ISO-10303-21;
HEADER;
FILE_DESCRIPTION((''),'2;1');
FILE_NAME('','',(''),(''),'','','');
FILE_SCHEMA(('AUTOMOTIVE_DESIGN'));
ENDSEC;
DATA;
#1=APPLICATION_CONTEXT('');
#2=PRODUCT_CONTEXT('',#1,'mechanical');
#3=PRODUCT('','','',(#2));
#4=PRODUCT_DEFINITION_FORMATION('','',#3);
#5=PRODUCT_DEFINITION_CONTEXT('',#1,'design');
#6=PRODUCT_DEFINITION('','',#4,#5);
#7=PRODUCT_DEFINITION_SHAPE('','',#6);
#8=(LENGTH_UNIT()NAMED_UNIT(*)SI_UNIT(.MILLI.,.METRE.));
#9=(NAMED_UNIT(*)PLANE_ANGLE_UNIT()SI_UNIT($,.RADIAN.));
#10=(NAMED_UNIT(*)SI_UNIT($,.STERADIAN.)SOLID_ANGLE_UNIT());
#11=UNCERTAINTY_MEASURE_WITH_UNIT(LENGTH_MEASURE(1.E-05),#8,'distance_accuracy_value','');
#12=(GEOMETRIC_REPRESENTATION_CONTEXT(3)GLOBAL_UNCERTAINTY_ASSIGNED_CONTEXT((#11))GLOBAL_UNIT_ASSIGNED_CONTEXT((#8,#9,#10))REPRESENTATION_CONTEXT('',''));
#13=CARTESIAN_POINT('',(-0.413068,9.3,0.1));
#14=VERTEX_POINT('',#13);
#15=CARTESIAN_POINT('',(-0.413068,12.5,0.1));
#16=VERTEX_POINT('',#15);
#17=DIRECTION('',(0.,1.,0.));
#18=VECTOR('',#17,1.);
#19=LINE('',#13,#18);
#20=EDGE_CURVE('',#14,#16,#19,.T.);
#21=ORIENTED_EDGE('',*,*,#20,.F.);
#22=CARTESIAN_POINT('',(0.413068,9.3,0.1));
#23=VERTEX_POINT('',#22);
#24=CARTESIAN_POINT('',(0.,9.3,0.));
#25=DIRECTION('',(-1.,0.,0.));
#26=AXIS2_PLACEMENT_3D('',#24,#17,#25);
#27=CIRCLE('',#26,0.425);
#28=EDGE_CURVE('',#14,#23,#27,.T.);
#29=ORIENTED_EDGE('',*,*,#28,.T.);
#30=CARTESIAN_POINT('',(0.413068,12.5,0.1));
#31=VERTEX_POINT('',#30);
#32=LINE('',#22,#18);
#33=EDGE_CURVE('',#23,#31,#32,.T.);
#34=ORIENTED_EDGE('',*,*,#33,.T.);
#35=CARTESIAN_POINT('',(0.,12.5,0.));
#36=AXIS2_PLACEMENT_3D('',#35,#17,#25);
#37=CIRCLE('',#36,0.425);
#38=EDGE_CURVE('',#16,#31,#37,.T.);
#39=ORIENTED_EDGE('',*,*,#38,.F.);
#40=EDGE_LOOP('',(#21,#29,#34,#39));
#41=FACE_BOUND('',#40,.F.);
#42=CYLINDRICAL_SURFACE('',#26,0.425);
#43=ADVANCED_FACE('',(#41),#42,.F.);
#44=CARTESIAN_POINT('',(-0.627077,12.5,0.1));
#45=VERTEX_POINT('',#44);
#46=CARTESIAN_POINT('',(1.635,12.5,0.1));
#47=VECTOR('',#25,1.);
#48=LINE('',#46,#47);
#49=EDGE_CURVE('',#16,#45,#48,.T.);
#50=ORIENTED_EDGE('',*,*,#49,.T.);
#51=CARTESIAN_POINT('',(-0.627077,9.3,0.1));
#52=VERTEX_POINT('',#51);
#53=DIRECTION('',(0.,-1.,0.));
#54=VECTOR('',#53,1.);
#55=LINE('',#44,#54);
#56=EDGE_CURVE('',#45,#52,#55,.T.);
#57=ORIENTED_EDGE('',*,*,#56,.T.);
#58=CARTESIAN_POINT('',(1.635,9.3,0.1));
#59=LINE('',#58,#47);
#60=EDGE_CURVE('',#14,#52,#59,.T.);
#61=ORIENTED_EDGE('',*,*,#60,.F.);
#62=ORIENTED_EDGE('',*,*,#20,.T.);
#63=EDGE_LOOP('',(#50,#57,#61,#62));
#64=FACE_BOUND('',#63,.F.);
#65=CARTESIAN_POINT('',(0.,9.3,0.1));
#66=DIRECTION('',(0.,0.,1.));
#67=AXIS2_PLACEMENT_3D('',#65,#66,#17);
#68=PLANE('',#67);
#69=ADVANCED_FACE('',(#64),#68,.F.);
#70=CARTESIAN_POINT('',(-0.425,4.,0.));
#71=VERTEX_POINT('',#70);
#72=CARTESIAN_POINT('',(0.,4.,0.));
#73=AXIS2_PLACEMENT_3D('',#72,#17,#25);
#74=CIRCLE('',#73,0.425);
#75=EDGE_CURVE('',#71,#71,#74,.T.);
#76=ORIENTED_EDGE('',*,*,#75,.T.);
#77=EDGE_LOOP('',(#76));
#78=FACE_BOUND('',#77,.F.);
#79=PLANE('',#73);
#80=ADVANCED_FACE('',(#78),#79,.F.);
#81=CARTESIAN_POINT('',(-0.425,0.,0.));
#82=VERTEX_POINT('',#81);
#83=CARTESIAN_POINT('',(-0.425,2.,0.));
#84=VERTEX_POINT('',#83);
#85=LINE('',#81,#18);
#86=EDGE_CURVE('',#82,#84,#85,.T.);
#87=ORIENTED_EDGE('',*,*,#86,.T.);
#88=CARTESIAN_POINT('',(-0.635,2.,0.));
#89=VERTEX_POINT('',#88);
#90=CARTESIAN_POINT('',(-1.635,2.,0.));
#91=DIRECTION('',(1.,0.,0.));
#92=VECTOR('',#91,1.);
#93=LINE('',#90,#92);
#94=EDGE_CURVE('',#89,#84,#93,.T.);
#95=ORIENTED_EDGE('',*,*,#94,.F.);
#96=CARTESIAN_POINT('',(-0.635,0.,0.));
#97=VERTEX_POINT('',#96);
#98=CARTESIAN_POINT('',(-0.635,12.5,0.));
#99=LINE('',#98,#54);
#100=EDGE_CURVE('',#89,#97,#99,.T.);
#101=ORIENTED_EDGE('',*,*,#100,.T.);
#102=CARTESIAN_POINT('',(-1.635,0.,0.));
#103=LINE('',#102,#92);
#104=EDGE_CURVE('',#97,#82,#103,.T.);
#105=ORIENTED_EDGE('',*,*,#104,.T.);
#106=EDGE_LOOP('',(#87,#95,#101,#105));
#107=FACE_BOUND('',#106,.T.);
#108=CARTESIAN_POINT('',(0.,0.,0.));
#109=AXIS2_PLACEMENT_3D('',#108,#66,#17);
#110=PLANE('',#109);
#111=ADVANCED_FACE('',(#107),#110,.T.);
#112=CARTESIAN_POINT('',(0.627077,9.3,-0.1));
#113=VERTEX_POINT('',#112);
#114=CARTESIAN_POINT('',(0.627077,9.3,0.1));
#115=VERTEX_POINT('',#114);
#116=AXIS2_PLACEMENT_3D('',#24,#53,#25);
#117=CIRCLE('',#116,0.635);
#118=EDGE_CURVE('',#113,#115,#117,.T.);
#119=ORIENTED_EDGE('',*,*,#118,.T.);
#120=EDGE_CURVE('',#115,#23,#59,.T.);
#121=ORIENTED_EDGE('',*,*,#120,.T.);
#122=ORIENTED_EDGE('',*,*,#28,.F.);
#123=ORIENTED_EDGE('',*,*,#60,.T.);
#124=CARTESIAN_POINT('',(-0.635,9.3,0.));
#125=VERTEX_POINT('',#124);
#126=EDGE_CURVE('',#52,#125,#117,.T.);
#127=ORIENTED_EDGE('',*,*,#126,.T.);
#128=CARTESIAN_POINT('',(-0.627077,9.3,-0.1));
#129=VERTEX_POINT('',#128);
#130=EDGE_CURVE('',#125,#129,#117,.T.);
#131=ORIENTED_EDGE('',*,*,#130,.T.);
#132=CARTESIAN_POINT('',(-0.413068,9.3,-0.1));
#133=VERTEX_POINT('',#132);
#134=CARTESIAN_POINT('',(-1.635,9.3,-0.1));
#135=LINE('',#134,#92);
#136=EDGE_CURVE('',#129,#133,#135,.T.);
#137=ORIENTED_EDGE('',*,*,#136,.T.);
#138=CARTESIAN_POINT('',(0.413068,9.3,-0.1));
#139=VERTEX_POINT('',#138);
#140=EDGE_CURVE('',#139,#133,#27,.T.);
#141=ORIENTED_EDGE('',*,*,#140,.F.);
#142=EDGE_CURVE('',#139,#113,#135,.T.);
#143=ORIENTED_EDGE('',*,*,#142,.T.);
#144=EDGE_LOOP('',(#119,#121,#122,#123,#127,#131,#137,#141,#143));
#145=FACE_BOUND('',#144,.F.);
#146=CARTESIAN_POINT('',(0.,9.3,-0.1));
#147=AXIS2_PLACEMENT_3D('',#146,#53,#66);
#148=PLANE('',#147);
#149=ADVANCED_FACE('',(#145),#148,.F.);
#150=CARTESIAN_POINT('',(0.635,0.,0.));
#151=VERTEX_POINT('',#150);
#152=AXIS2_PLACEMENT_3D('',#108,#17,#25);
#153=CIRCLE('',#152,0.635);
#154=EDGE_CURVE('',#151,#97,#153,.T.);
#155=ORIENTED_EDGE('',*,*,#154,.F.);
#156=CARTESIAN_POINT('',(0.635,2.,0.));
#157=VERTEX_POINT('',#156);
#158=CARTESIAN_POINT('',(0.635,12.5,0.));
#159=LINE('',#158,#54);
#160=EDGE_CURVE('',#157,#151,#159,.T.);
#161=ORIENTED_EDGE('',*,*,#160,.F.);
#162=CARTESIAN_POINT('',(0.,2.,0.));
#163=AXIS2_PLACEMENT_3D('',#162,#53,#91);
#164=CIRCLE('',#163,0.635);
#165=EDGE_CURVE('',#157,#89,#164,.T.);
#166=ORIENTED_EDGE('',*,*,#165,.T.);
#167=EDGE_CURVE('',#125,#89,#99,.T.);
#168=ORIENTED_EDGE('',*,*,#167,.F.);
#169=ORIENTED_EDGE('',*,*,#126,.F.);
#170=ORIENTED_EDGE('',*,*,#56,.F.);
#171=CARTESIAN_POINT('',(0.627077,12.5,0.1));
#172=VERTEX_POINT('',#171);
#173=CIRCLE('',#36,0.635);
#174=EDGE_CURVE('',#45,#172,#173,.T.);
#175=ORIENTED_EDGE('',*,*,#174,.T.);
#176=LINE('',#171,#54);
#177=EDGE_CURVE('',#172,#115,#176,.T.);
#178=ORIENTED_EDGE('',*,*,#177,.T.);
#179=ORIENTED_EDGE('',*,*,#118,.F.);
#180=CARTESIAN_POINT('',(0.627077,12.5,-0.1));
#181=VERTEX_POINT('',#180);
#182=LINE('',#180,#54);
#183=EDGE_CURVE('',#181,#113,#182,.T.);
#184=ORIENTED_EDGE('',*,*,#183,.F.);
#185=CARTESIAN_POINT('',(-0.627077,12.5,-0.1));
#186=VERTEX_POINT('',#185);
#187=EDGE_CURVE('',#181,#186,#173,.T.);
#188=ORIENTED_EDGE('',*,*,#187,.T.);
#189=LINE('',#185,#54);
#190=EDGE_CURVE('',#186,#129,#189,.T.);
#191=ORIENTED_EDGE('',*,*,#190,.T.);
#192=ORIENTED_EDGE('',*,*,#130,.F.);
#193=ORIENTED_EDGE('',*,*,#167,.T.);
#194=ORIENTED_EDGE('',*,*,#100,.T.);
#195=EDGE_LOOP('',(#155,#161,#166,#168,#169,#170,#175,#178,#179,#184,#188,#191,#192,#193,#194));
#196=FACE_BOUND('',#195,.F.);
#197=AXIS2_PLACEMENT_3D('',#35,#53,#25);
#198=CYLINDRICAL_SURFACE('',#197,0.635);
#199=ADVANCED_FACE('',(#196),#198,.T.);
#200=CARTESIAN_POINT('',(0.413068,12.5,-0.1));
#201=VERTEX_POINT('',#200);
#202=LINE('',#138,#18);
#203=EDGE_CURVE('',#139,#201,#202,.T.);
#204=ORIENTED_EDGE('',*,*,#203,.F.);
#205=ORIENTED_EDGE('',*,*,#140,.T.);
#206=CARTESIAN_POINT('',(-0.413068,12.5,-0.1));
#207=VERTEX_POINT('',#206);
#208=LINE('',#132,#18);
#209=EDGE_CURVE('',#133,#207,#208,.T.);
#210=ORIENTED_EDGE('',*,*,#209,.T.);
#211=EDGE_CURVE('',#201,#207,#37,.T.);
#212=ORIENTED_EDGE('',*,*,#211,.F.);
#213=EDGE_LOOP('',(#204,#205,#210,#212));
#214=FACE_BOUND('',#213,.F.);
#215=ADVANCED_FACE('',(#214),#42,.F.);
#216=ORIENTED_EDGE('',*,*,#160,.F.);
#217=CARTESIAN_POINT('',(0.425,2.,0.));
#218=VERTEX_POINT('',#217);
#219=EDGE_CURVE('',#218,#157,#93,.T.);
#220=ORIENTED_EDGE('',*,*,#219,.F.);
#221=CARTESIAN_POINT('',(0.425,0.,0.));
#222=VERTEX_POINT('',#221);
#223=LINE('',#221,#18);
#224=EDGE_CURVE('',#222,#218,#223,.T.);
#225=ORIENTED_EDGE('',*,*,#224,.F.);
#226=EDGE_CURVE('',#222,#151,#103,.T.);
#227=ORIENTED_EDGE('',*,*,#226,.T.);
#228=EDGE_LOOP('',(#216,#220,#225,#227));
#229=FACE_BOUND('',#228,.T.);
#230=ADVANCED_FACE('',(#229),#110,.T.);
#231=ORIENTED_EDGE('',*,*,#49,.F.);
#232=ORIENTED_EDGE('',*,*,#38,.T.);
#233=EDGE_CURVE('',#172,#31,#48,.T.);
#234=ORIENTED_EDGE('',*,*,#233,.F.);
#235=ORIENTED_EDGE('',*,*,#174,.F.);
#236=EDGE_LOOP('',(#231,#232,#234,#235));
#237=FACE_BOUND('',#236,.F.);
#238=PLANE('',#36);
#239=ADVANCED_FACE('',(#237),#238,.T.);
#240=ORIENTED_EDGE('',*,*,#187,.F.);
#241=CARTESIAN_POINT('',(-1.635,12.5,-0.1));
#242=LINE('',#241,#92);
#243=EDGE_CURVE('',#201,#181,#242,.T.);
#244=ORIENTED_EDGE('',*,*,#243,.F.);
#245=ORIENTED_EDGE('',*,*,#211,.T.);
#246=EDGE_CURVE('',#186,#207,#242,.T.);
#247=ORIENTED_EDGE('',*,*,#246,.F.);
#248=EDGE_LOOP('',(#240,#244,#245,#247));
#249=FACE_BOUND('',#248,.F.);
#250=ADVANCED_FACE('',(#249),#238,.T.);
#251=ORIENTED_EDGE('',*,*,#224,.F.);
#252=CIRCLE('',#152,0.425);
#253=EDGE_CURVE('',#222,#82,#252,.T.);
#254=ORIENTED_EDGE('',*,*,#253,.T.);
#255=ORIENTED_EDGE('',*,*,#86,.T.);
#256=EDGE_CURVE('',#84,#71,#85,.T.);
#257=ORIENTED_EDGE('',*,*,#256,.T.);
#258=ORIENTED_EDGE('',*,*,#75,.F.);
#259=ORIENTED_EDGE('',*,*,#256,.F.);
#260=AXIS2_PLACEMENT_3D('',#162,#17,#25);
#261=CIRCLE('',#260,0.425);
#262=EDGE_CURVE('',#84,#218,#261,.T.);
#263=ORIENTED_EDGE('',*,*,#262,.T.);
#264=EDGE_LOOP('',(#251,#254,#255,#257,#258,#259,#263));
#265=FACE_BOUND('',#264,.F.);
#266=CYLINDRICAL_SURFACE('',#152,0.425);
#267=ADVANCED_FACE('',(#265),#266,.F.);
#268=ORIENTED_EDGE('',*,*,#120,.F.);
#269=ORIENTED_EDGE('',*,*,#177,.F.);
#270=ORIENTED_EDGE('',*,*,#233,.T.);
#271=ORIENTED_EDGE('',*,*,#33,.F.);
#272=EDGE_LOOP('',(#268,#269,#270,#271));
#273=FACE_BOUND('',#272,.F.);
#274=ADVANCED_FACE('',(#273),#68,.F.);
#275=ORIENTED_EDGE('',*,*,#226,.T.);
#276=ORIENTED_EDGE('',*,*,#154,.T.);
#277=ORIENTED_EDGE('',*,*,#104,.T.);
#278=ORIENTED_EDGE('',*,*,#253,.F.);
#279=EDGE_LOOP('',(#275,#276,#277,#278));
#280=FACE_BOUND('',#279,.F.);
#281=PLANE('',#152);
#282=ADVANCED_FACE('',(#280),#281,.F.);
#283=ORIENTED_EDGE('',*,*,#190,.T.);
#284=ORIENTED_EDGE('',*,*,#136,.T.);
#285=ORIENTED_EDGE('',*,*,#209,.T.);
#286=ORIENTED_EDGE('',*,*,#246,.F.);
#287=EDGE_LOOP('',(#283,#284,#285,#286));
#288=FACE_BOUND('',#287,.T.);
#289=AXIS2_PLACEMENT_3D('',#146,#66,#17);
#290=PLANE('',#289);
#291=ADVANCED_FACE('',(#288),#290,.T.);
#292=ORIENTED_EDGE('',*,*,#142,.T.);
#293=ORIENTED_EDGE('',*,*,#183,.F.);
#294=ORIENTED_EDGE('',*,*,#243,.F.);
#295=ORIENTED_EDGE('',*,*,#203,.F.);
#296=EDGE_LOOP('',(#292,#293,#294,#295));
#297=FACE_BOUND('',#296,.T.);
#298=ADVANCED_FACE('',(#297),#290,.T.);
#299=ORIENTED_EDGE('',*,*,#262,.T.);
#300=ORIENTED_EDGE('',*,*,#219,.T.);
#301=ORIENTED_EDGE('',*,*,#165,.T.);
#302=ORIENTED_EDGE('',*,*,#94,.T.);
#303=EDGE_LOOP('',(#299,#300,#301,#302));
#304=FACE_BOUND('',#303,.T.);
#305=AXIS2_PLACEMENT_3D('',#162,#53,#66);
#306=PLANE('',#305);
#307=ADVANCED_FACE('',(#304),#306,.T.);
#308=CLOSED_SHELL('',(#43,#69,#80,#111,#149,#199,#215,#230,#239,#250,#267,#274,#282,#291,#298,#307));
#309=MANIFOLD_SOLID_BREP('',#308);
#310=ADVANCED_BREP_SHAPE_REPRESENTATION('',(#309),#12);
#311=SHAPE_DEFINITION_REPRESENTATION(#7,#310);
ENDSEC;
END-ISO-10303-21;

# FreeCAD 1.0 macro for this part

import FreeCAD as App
import Part
import Sketcher
from FreeCAD import Vector
Q = App.Units.Quantity


def add_polygon(sketch, points):
    """Adds a closed chain of lines whose ends are joined by coincident constraints."""
    first, n = sketch.GeometryCount, len(points)
    for a, b in zip(points, points[1:] + points[:1]):
        sketch.addGeometry(Part.LineSegment(App.Vector(*a, 0), App.Vector(*b, 0)), False)
    for i in range(n):
        sketch.addConstraint(Sketcher.Constraint("Coincident", first + i, 2, first + (i + 1) % n, 1))

doc = App.newDocument("Part")
params = doc.addObject("Spreadsheet::Sheet", "Params")
for row, (alias, value) in enumerate([
    ("sketch1_height", "4 mm"),
    ("sketch1_height2", "3.2 mm"),
    ("sketch1_height3", "12.5 mm"),
    ("revolution_angle", "360 deg"),
    ("sketch2_height", "0.2 mm"),
    ("sketch2_width", "3.2 mm"),
    ("sketch3_width", "2 mm"),
], start=1):
    params.set(f"A{row}", alias)
    params.set(f"B{row}", "=" + value)
    params.setAlias(f"B{row}", alias)

body = doc.addObject("PartDesign::Body", "Body")

sketch1 = body.newObject("Sketcher::SketchObject", "Sketch")
sketch1.AttachmentSupport = (doc.getObject("XY_Plane"), [""])
sketch1.MapMode = "FlatFace"
add_polygon(sketch1, [(0, 4), (0, 9.3), (-0.42, 9.3), (-0.42, 12.5), (-0.64, 12.5), (-0.64, 0), (-0.42, 0), (-0.42, 4)])
sketch1.addConstraint(Sketcher.Constraint("Vertical", 0))
sketch1.addConstraint(Sketcher.Constraint("Horizontal", 1))
sketch1.addConstraint(Sketcher.Constraint("Vertical", 2))
sketch1.addConstraint(Sketcher.Constraint("Horizontal", 3))
sketch1.addConstraint(Sketcher.Constraint("Vertical", 4))
sketch1.addConstraint(Sketcher.Constraint("Horizontal", 5))
sketch1.addConstraint(Sketcher.Constraint("Vertical", 6))
sketch1.addConstraint(Sketcher.Constraint("Horizontal", 7))
sketch1.addConstraint(Sketcher.Constraint("PointOnObject", 0, 2, -2))
sketch1.addConstraint(Sketcher.Constraint("PointOnObject", 4, 2, -1))
sketch1.addConstraint(Sketcher.Constraint("Vertical", 2, 2, 5, 2))
sketch1.addConstraint(Sketcher.Constraint("DistanceY", 6, 1, 6, 2, Q("4 mm")))
sketch1.addConstraint(Sketcher.Constraint("DistanceY", 2, 1, 2, 2, Q("3.2 mm")))
sketch1.addConstraint(Sketcher.Constraint("DistanceY", 4, 2, 4, 1, Q("12.5 mm")))
sketch1.addConstraint(Sketcher.Constraint("DistanceX", 1, 2, 1, 1, Q("0.425 mm")))
sketch1.addConstraint(Sketcher.Constraint("DistanceX", 3, 2, -1, 1, Q("0.635 mm")))
sketch1.setExpression("Constraints[19]", "Params.sketch1_height")
sketch1.setExpression("Constraints[20]", "Params.sketch1_height2")
sketch1.setExpression("Constraints[21]", "Params.sketch1_height3")
revolution = body.newObject("PartDesign::Revolution", "Revolution")
revolution.Profile = sketch1
revolution.ReferenceAxis = (sketch1, ["V_Axis"])
revolution.setExpression("Angle", "Params.revolution_angle")

sketch2 = body.newObject("Sketcher::SketchObject", "Sketch001")
sketch2.AttachmentSupport = (doc.getObject("YZ_Plane"), [""])
sketch2.MapMode = "FlatFace"
add_polygon(sketch2, [(9.3, 0.1), (9.3, -0.1), (12.5, -0.1), (12.5, 0.1)])
sketch2.addConstraint(Sketcher.Constraint("Vertical", 0))
sketch2.addConstraint(Sketcher.Constraint("Horizontal", 1))
sketch2.addConstraint(Sketcher.Constraint("Vertical", 2))
sketch2.addConstraint(Sketcher.Constraint("Horizontal", 3))
sketch2.addConstraint(Sketcher.Constraint("DistanceY", 0, 2, 0, 1, Q("0.2 mm")))
sketch2.addConstraint(Sketcher.Constraint("DistanceY", 0, 2, -1, 1, Q("0.1 mm")))
sketch2.addConstraint(Sketcher.Constraint("DistanceX", 1, 1, 1, 2, Q("3.2 mm")))
sketch2.addConstraint(Sketcher.Constraint("DistanceX", -1, 1, 0, 2, Q("9.3 mm")))
sketch2.setExpression("Constraints[8]", "Params.sketch2_height")
sketch2.setExpression("Constraints[10]", "Params.sketch2_width")
pocket1 = body.newObject("PartDesign::Pocket", "Pocket")
pocket1.Profile = sketch2
pocket1.Type = "ThroughAll"
pocket1.Midplane = True

sketch3 = body.newObject("Sketcher::SketchObject", "Sketch002")
sketch3.AttachmentSupport = (doc.getObject("YZ_Plane"), [""])
sketch3.MapMode = "FlatFace"
add_polygon(sketch3, [(0, 0.6), (0, 0), (2, 0), (2, 0.6)])
sketch3.addConstraint(Sketcher.Constraint("Vertical", 0))
sketch3.addConstraint(Sketcher.Constraint("Horizontal", 1))
sketch3.addConstraint(Sketcher.Constraint("Vertical", 2))
sketch3.addConstraint(Sketcher.Constraint("Horizontal", 3))
sketch3.addConstraint(Sketcher.Constraint("Coincident", 0, 2, -1, 1))
sketch3.addConstraint(Sketcher.Constraint("DistanceX", 1, 1, 1, 2, Q("2 mm")))
sketch3.addConstraint(Sketcher.Constraint("DistanceY", 0, 2, 0, 1, Q("0.635 mm")))
sketch3.setExpression("Constraints[9]", "Params.sketch3_width")
pocket2 = body.newObject("PartDesign::Pocket", "Pocket001")
pocket2.Profile = sketch3
pocket2.Type = "ThroughAll"
pocket2.Midplane = True

doc.recompute()
